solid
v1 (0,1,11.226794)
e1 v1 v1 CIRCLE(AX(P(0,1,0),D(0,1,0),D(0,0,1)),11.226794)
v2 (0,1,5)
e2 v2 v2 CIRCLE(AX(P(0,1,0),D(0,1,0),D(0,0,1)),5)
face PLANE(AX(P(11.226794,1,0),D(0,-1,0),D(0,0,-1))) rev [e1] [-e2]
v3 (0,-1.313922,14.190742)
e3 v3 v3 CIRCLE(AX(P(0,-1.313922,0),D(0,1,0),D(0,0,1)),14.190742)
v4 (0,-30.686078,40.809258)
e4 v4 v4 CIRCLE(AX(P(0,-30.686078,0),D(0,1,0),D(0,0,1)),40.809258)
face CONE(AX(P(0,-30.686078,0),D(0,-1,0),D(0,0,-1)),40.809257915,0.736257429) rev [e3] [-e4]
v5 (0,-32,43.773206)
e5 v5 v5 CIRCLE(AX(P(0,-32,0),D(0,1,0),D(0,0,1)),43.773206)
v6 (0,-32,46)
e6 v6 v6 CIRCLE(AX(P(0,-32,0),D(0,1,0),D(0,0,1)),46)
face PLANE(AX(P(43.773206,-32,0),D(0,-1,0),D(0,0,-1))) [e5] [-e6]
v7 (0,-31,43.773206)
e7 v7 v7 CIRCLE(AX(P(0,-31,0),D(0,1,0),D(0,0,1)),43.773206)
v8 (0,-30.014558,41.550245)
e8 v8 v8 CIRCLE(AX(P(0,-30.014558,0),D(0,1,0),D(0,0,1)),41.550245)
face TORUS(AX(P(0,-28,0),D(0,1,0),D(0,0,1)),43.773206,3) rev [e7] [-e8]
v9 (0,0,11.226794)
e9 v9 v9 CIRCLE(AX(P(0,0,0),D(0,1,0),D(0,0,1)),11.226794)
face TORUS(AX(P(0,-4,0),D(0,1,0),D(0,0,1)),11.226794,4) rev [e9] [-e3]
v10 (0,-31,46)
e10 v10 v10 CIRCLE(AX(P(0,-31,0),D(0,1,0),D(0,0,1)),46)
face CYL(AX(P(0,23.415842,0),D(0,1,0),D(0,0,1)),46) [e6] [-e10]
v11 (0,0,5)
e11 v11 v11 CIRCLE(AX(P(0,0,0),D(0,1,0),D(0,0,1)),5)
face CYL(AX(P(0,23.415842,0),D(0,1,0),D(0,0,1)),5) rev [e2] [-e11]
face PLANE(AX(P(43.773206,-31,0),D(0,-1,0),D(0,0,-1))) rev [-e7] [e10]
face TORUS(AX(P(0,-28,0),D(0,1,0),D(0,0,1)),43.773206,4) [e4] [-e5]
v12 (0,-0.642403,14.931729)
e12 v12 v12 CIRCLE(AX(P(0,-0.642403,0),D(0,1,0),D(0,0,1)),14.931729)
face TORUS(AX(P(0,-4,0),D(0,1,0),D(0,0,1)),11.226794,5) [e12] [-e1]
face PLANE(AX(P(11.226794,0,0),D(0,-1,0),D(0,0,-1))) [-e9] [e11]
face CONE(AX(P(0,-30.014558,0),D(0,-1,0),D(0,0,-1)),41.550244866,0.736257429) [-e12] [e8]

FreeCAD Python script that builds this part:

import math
import FreeCAD as App
import Part
import Sketcher

doc = App.newDocument("Part")
body = doc.addObject("PartDesign::Body", "Body")

# Sketch on XY plane
sketch1 = doc.addObject("Sketcher::SketchObject", "Sketch")
body.addObject(sketch1)
sketch1.AttachmentSupport = (doc.XY_Plane, [""])
sketch1.MapMode = "FlatFace"
sketch1.addGeometry([
    Part.LineSegment(App.Vector(5, 0, 0), App.Vector(11.226794, 0, 0)),  # 0
    Part.ArcOfCircle(Part.Circle(App.Vector(11.226794, -4, 0), App.Vector(0, 0, 1), 4), math.radians(42.184443), math.radians(90)),  # 1
    Part.LineSegment(App.Vector(14.190742, -1.313922, 0), App.Vector(40.809258, -30.686078, 0)),  # 2
    Part.ArcOfCircle(Part.Circle(App.Vector(43.773206, -28, 0), App.Vector(0, 0, 1), 4), math.radians(-137.815557), math.radians(-90)),  # 3
    Part.LineSegment(App.Vector(43.773206, -32, 0), App.Vector(46, -32, 0)),  # 4
    Part.LineSegment(App.Vector(46, -32, 0), App.Vector(46, -31, 0)),  # 5
    Part.LineSegment(App.Vector(46, -31, 0), App.Vector(43.773206, -31, 0)),  # 6
    Part.ArcOfCircle(Part.Circle(App.Vector(43.773206, -28, 0), App.Vector(0, 0, 1), 3), math.radians(-137.815557), math.radians(-90)),  # 7
    Part.LineSegment(App.Vector(41.550245, -30.014558, 0), App.Vector(14.931729, -0.642403, 0)),  # 8
    Part.ArcOfCircle(Part.Circle(App.Vector(11.226794, -4, 0), App.Vector(0, 0, 1), 5), math.radians(42.184443), math.radians(90)),  # 9
    Part.LineSegment(App.Vector(11.226794, 1, 0), App.Vector(5, 1, 0)),  # 10
    Part.LineSegment(App.Vector(5, 1, 0), App.Vector(5, 0, 0)),  # 11
], False)
sketch1.addConstraint([
    Sketcher.Constraint("Tangent", 0, 2, 1, 2),
    Sketcher.Constraint("Tangent", 1, 1, 2, 1),
    Sketcher.Constraint("Tangent", 2, 2, 3, 1),
    Sketcher.Constraint("Tangent", 3, 2, 4, 1),
    Sketcher.Constraint("Coincident", 4, 2, 5, 1),
    Sketcher.Constraint("Coincident", 5, 2, 6, 1),
    Sketcher.Constraint("Tangent", 6, 2, 7, 2),
    Sketcher.Constraint("Tangent", 7, 1, 8, 1),
    Sketcher.Constraint("Tangent", 8, 2, 9, 1),
    Sketcher.Constraint("Tangent", 9, 2, 10, 1),
    Sketcher.Constraint("Coincident", 10, 2, 11, 1),
    Sketcher.Constraint("Coincident", 11, 2, 0, 1),
    Sketcher.Constraint("Horizontal", 0),
    Sketcher.Constraint("Horizontal", 4),
    Sketcher.Constraint("Vertical", 5),
    Sketcher.Constraint("Horizontal", 6),
    Sketcher.Constraint("Horizontal", 10),
    Sketcher.Constraint("Vertical", 11),
    Sketcher.Constraint("Coincident", 7, 3, 3, 3),
    Sketcher.Constraint("Coincident", 9, 3, 1, 3),
    Sketcher.Constraint("Equal", 1, 3),
    Sketcher.Constraint("PointOnObject", 0, 2, -1),
    Sketcher.Constraint("Parallel", 2, 8),
    Sketcher.Constraint("Radius", 1, 4.0),
    Sketcher.Constraint("Radius", 7, 3.0),
    Sketcher.Constraint("DistanceY", 3, 3, -1, 1, 28.0),
    Sketcher.Constraint("DistanceX", -1, 1, 4, 2, 46.0),
    Sketcher.Constraint("DistanceX", -1, 1, 10, 2, 5.0),
    Sketcher.Constraint("DistanceX", 0, 1, 0, 2, 6.226794),
    Sketcher.Constraint("DistanceX", 4, 1, 4, 2, 2.226794),
])
revolution = doc.addObject("PartDesign::Revolution", "Revolution")
body.addObject(revolution)
revolution.Profile = sketch1
revolution.ReferenceAxis = (sketch1, ["V_Axis"])
revolution.Angle = 360

doc.recompute()
